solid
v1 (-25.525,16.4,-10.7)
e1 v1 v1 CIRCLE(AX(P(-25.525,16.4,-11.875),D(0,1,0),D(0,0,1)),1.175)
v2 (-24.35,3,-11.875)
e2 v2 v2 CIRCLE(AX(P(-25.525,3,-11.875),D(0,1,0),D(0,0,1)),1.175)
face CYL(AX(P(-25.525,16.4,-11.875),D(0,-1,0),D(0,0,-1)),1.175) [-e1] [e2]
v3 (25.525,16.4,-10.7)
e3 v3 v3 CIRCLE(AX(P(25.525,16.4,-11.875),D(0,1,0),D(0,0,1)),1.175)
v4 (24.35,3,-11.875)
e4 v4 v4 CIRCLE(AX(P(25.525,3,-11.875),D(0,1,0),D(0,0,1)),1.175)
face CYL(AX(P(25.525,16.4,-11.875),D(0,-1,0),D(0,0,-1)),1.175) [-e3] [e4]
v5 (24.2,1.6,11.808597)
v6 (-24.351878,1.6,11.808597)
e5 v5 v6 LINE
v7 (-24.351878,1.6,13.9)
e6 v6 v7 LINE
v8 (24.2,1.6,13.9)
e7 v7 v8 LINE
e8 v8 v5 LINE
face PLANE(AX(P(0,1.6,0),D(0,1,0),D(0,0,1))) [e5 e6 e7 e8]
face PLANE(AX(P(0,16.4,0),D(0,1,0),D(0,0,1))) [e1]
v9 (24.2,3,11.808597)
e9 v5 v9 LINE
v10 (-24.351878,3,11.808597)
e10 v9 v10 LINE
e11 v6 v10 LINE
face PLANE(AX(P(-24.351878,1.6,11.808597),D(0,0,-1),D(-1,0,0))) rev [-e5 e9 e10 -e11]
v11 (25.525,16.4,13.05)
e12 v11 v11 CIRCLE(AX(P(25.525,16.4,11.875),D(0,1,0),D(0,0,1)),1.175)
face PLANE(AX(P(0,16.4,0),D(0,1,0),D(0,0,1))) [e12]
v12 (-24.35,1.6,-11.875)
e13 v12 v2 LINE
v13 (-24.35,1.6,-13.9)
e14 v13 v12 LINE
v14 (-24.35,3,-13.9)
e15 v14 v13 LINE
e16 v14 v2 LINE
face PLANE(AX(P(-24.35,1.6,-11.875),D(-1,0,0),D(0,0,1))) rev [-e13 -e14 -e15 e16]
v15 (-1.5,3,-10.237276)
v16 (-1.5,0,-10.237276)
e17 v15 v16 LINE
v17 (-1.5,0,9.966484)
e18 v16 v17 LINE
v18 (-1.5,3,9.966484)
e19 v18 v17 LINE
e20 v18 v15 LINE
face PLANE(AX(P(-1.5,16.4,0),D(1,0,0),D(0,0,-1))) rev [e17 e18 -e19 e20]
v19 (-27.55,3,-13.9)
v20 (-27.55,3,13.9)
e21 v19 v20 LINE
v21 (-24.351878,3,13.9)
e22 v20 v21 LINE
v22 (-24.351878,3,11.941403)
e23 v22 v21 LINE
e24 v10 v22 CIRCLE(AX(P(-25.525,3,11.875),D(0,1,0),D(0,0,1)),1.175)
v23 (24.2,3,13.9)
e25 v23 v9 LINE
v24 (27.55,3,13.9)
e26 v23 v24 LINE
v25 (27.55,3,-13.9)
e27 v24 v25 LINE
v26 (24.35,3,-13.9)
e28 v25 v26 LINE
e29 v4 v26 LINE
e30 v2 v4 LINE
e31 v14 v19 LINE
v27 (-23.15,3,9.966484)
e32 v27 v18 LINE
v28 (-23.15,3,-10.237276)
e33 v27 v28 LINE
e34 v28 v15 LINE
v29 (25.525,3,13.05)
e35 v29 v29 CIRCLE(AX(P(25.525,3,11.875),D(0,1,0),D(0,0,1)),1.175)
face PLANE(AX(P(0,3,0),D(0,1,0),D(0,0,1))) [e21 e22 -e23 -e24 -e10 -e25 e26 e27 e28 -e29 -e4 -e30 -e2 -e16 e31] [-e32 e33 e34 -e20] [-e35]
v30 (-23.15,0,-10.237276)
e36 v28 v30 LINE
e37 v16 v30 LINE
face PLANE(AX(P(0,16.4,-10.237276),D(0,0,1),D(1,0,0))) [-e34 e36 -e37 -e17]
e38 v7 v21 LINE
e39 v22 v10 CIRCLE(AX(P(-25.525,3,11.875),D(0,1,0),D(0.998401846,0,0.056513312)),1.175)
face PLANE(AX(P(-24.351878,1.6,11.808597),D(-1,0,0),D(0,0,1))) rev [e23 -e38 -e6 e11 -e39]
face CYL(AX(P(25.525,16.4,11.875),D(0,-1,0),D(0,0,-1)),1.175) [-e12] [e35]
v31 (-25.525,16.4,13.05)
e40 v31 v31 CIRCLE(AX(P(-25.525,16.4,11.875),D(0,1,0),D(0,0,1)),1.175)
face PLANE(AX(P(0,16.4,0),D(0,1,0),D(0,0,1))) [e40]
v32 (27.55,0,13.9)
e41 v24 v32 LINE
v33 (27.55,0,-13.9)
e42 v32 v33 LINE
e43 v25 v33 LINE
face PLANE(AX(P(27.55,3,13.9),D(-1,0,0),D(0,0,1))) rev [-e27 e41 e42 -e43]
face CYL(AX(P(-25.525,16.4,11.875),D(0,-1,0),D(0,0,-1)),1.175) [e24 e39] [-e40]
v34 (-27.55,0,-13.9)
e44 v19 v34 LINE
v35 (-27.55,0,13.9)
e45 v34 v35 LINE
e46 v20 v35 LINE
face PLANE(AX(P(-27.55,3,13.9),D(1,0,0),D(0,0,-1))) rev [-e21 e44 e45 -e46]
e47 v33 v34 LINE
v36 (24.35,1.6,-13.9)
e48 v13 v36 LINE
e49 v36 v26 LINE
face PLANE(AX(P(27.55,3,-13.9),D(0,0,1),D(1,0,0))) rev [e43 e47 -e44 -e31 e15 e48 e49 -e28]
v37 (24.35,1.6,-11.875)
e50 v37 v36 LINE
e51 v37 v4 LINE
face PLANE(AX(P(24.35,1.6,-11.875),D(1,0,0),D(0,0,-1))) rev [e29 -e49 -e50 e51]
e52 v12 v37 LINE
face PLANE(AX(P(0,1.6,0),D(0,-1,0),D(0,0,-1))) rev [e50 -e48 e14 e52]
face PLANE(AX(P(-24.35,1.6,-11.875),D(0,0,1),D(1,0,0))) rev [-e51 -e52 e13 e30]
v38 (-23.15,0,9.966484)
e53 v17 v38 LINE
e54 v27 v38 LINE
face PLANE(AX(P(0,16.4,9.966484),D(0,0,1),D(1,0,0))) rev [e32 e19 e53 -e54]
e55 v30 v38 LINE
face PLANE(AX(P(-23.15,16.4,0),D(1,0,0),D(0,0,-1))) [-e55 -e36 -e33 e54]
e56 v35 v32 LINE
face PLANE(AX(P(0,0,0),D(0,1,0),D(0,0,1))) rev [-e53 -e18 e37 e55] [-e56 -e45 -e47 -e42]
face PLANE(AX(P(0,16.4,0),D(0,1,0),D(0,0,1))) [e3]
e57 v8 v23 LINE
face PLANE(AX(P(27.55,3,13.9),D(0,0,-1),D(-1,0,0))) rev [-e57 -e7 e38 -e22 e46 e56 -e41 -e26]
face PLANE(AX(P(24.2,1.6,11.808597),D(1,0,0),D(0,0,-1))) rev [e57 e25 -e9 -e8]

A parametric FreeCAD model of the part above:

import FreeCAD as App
import Part
import Sketcher
from FreeCAD import Vector
Q = App.Units.Quantity


def add_polygon(sketch, points):
    """Adds a closed chain of lines whose ends are joined by coincident constraints."""
    first, n = sketch.GeometryCount, len(points)
    for a, b in zip(points, points[1:] + points[:1]):
        sketch.addGeometry(Part.LineSegment(App.Vector(*a, 0), App.Vector(*b, 0)), False)
    for i in range(n):
        sketch.addConstraint(Sketcher.Constraint("Coincident", first + i, 2, first + (i + 1) % n, 1))

doc = App.newDocument("Part")
body = doc.addObject("PartDesign::Body", "Body")

# Sketch on XZ plane
sketch1 = body.newObject("Sketcher::SketchObject", "Sketch")
sketch1.AttachmentSupport = (doc.getObject("XZ_Plane"), [""])
sketch1.MapMode = "FlatFace"
add_polygon(sketch1, [(-27.55, -13.9), (-27.55, 13.9), (27.55, 13.9), (27.55, -13.9)])  # lines 0-3
sketch1.addConstraint(Sketcher.Constraint("Vertical", 0))
sketch1.addConstraint(Sketcher.Constraint("Horizontal", 1))
sketch1.addConstraint(Sketcher.Constraint("Vertical", 2))
sketch1.addConstraint(Sketcher.Constraint("Horizontal", 3))
sketch1.addConstraint(Sketcher.Constraint("Symmetric", 0, 2, 2, 2, -1, 1))
sketch1.addConstraint(Sketcher.Constraint("DistanceX", 1, 1, 1, 2, Q("55.1 mm")))
sketch1.addConstraint(Sketcher.Constraint("DistanceY", 0, 1, 0, 2, Q("27.8 mm")))
pad1 = body.newObject("PartDesign::Pad", "Pad")
pad1.Profile = sketch1
pad1.Length = 3
pad1.Reversed = True

# Sketch on XZ plane
sketch2 = body.newObject("Sketcher::SketchObject", "Sketch001")
sketch2.AttachmentSupport = (doc.getObject("XZ_Plane"), [""])
sketch2.MapMode = "FlatFace"
sketch2.AttachmentOffset = App.Placement(Vector(0, 0, -3), App.Rotation())
sketch2.addGeometry(Part.Circle(Vector(-25.525, -11.875, 0), Vector(0, 0, 1), 1.175), False)
sketch2.addGeometry(Part.Circle(Vector(-25.525, 11.875, 0), Vector(0, 0, 1), 1.175), False)
sketch2.addGeometry(Part.Circle(Vector(25.525, -11.875, 0), Vector(0, 0, 1), 1.175), False)
sketch2.addGeometry(Part.Circle(Vector(25.525, 11.875, 0), Vector(0, 0, 1), 1.175), False)
sketch2.addConstraint(Sketcher.Constraint("Equal", 0, 1))
sketch2.addConstraint(Sketcher.Constraint("Equal", 1, 2))
sketch2.addConstraint(Sketcher.Constraint("Equal", 2, 3))
sketch2.addConstraint(Sketcher.Constraint("Symmetric", 1, 3, 2, 3, -1, 1))
sketch2.addConstraint(Sketcher.Constraint("Symmetric", 0, 3, 3, 3, -1, 1))
sketch2.addConstraint(Sketcher.Constraint("Symmetric", 0, 3, 2, 3, -2))
sketch2.addConstraint(Sketcher.Constraint("Diameter", 0, Q("2.35 mm")))
sketch2.addConstraint(Sketcher.Constraint("DistanceY", 0, 3, 1, 3, Q("23.75 mm")))
sketch2.addConstraint(Sketcher.Constraint("DistanceX", 0, 3, 2, 3, Q("51.05 mm")))
pad2 = body.newObject("PartDesign::Pad", "Pad001")
pad2.Profile = sketch2
pad2.Length = 13.4
pad2.Reversed = True

# Sketch on XZ plane
sketch3 = body.newObject("Sketcher::SketchObject", "Sketch002")
sketch3.AttachmentSupport = (doc.getObject("XZ_Plane"), [""])
sketch3.MapMode = "FlatFace"
add_polygon(sketch3, [(-23.15, 9.966484), (-23.15, -10.237276), (-1.5, -10.237276), (-1.5, 9.966484)])  # lines 0-3
sketch3.addConstraint(Sketcher.Constraint("Vertical", 0))
sketch3.addConstraint(Sketcher.Constraint("Horizontal", 1))
sketch3.addConstraint(Sketcher.Constraint("Vertical", 2))
sketch3.addConstraint(Sketcher.Constraint("Horizontal", 3))
sketch3.addConstraint(Sketcher.Constraint("DistanceX", 1, 1, 1, 2, Q("21.65 mm")))
sketch3.addConstraint(Sketcher.Constraint("DistanceX", 1, 2, -1, 1, Q("1.5 mm")))
sketch3.addConstraint(Sketcher.Constraint("DistanceY", 0, 2, 0, 1, Q("20.20376 mm")))
sketch3.addConstraint(Sketcher.Constraint("DistanceY", 0, 2, -1, 1, Q("10.237276 mm")))
pocket1 = body.newObject("PartDesign::Pocket", "Pocket")
pocket1.Profile = sketch3
pocket1.Length = 35.945279

# Sketch on XZ plane
sketch4 = body.newObject("Sketcher::SketchObject", "Sketch003")
sketch4.AttachmentSupport = (doc.getObject("XZ_Plane"), [""])
sketch4.MapMode = "FlatFace"
sketch4.AttachmentOffset = App.Placement(Vector(0, 0, -3), App.Rotation())
add_polygon(sketch4, [(-24.351878, 11.808597), (-24.351878, 13.9), (24.2, 13.9), (24.2, 11.808597)])  # lines 0-3
add_polygon(sketch4, [(-24.35, -16.458955), (-24.35, -11.875), (24.35, -11.875), (24.35, -16.458955)])  # lines 4-7
sketch4.addConstraint(Sketcher.Constraint("Vertical", 0))
sketch4.addConstraint(Sketcher.Constraint("Horizontal", 1))
sketch4.addConstraint(Sketcher.Constraint("Vertical", 2))
sketch4.addConstraint(Sketcher.Constraint("Horizontal", 3))
sketch4.addConstraint(Sketcher.Constraint("Vertical", 4))
sketch4.addConstraint(Sketcher.Constraint("Horizontal", 5))
sketch4.addConstraint(Sketcher.Constraint("Vertical", 6))
sketch4.addConstraint(Sketcher.Constraint("Horizontal", 7))
sketch4.addConstraint(Sketcher.Constraint("DistanceX", 5, 1, 5, 2, Q("48.7 mm")))
sketch4.addConstraint(Sketcher.Constraint("DistanceY", -1, 1, 0, 2, Q("13.9 mm")))
sketch4.addConstraint(Sketcher.Constraint("DistanceX", -1, 1, 1, 2, Q("24.2 mm")))
sketch4.addConstraint(Sketcher.Constraint("DistanceX", 4, 2, -1, 1, Q("24.35 mm")))
sketch4.addConstraint(Sketcher.Constraint("DistanceY", 4, 2, -1, 1, Q("11.875 mm")))
sketch4.addConstraint(Sketcher.Constraint("DistanceX", 1, 1, 1, 2, Q("48.551878 mm")))
sketch4.addConstraint(Sketcher.Constraint("DistanceY", 0, 1, 0, 2, Q("2.091403 mm")))
sketch4.addConstraint(Sketcher.Constraint("DistanceY", 4, 1, 4, 2, Q("4.583955 mm")))
pocket2 = body.newObject("PartDesign::Pocket", "Pocket001")
pocket2.Profile = sketch4
pocket2.Length = 1.4
pocket2.Reversed = True

doc.recompute()
